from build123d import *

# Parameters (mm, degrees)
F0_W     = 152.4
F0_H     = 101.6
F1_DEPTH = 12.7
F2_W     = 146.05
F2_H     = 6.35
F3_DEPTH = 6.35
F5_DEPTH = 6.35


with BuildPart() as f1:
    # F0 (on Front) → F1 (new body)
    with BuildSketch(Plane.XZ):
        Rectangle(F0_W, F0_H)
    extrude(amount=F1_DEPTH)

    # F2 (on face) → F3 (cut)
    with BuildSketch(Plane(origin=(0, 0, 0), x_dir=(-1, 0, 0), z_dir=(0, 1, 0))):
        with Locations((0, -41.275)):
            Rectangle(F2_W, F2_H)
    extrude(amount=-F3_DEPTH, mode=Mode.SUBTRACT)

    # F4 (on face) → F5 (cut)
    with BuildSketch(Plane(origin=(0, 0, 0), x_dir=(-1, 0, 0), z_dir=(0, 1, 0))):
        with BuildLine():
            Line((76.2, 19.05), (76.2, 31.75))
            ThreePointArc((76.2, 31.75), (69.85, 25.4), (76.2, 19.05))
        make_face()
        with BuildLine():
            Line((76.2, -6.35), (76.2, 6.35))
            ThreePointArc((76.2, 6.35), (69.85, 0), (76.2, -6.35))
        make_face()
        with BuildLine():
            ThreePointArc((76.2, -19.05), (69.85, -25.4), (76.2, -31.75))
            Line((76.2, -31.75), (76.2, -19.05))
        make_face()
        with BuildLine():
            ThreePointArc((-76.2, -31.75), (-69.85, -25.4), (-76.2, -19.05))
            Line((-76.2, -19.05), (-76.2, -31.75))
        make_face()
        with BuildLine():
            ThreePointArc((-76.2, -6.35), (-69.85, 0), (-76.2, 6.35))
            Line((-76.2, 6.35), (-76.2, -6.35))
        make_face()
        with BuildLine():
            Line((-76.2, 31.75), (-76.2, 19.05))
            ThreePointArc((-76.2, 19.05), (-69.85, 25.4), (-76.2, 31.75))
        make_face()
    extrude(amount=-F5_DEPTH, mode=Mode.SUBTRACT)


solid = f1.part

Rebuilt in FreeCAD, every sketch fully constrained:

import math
import FreeCAD as App
import Part
import Sketcher
from FreeCAD import Vector
Q = App.Units.Quantity

doc = App.newDocument("Part")
body = doc.addObject("PartDesign::Body", "Body")

# Sketch on XZ plane
sketch1 = body.newObject("Sketcher::SketchObject", "Sketch")
sketch1.AttachmentSupport = (doc.getObject("XZ_Plane"), [""])
sketch1.MapMode = "FlatFace"
sketch1.addGeometry(Part.LineSegment(Vector(-76, 51, 0), Vector(-76, -51, 0)), False)
sketch1.addGeometry(Part.LineSegment(Vector(-76, -51, 0), Vector(76, -51, 0)), False)
sketch1.addGeometry(Part.LineSegment(Vector(76, -51, 0), Vector(76, 51, 0)), False)
sketch1.addGeometry(Part.LineSegment(Vector(76, 51, 0), Vector(-76, 51, 0)), False)
sketch1.addConstraint(Sketcher.Constraint("Coincident", 0, 2, 1, 1))
sketch1.addConstraint(Sketcher.Constraint("Coincident", 1, 2, 2, 1))
sketch1.addConstraint(Sketcher.Constraint("Coincident", 2, 2, 3, 1))
sketch1.addConstraint(Sketcher.Constraint("Coincident", 3, 2, 0, 1))
sketch1.addConstraint(Sketcher.Constraint("Vertical", 0))
sketch1.addConstraint(Sketcher.Constraint("Horizontal", 1))
sketch1.addConstraint(Sketcher.Constraint("Vertical", 2))
sketch1.addConstraint(Sketcher.Constraint("Horizontal", 3))
sketch1.addConstraint(Sketcher.Constraint("Symmetric", 0, 2, 2, 2, -1, 1))
sketch1.addConstraint(Sketcher.Constraint("DistanceX", 1, 1, 1, 2, Q("6 in")))
sketch1.addConstraint(Sketcher.Constraint("DistanceY", 0, 2, 0, 1, Q("4 in")))
pad1 = body.newObject("PartDesign::Pad", "Pad")
pad1.Profile = sketch1
pad1.Length = Q("0.5 in")

# Sketch on XZ plane
sketch2 = body.newObject("Sketcher::SketchObject", "Sketch001")
sketch2.AttachmentSupport = (doc.getObject("XZ_Plane"), [""])
sketch2.MapMode = "FlatFace"
sketch2.addGeometry(Part.LineSegment(Vector(73, -38, 0), Vector(73, -44, 0)), False)
sketch2.addGeometry(Part.LineSegment(Vector(73, -44, 0), Vector(-73, -44, 0)), False)
sketch2.addGeometry(Part.LineSegment(Vector(-73, -44, 0), Vector(-73, -38, 0)), False)
sketch2.addGeometry(Part.LineSegment(Vector(-73, -38, 0), Vector(73, -38, 0)), False)
sketch2.addConstraint(Sketcher.Constraint("Coincident", 0, 2, 1, 1))
sketch2.addConstraint(Sketcher.Constraint("Coincident", 1, 2, 2, 1))
sketch2.addConstraint(Sketcher.Constraint("Coincident", 2, 2, 3, 1))
sketch2.addConstraint(Sketcher.Constraint("Coincident", 3, 2, 0, 1))
sketch2.addConstraint(Sketcher.Constraint("Vertical", 0))
sketch2.addConstraint(Sketcher.Constraint("Horizontal", 1))
sketch2.addConstraint(Sketcher.Constraint("Vertical", 2))
sketch2.addConstraint(Sketcher.Constraint("Horizontal", 3))
sketch2.addConstraint(Sketcher.Constraint("DistanceX", 1, 2, 1, 1, Q("5.75 in")))
sketch2.addConstraint(Sketcher.Constraint("DistanceY", 0, 2, 0, 1, Q("0.25 in")))
sketch2.addConstraint(Sketcher.Constraint("DistanceY", 2, 2, -1, 1, Q("1.5 in")))
sketch2.addConstraint(Sketcher.Constraint("DistanceX", -1, 1, 0, 2, Q("2.875 in")))
pocket1 = body.newObject("PartDesign::Pocket", "Pocket")
pocket1.Profile = sketch2
pocket1.Length = Q("0.25 in")
pocket1.Reversed = True

# Sketch on XZ plane
sketch3 = body.newObject("Sketcher::SketchObject", "Sketch002")
sketch3.AttachmentSupport = (doc.getObject("XZ_Plane"), [""])
sketch3.MapMode = "FlatFace"
sketch3.addGeometry(Part.LineSegment(Vector(-76, 19, 0), Vector(-76, 32, 0)), False)
sketch3.addGeometry(Part.ArcOfCircle(Part.Circle(Vector(-76, 25, 0), Vector(0, 0, 1), 6), math.radians(-90), math.radians(90)), False)
sketch3.addGeometry(Part.LineSegment(Vector(-76, -6, 0), Vector(-76, 6, 0)), False)
sketch3.addGeometry(Part.ArcOfCircle(Part.Circle(Vector(-76, 0, 0), Vector(0, 0, 1), 6), math.radians(-90), math.radians(90)), False)
sketch3.addGeometry(Part.ArcOfCircle(Part.Circle(Vector(-76, -25, 0), Vector(0, 0, 1), 6), math.radians(-90), math.radians(90)), False)
sketch3.addGeometry(Part.LineSegment(Vector(-76, -32, 0), Vector(-76, -19, 0)), False)
sketch3.addGeometry(Part.ArcOfCircle(Part.Circle(Vector(76, -25, 0), Vector(0, 0, 1), 6), math.radians(90), math.radians(270)), False)
sketch3.addGeometry(Part.LineSegment(Vector(76, -19, 0), Vector(76, -32, 0)), False)
sketch3.addGeometry(Part.ArcOfCircle(Part.Circle(Vector(76, 0, 0), Vector(0, 0, 1), 6), math.radians(90), math.radians(270)), False)
sketch3.addGeometry(Part.LineSegment(Vector(76, 6, 0), Vector(76, -6, 0)), False)
sketch3.addGeometry(Part.LineSegment(Vector(76, 32, 0), Vector(76, 19, 0)), False)
sketch3.addGeometry(Part.ArcOfCircle(Part.Circle(Vector(76, 25, 0), Vector(0, 0, 1), 6), math.radians(90), math.radians(270)), False)
sketch3.addConstraint(Sketcher.Constraint("Coincident", 0, 1, 1, 1))
sketch3.addConstraint(Sketcher.Constraint("Coincident", 1, 2, 0, 2))
sketch3.addConstraint(Sketcher.Constraint("Coincident", 2, 1, 3, 1))
sketch3.addConstraint(Sketcher.Constraint("Coincident", 3, 2, 2, 2))
sketch3.addConstraint(Sketcher.Constraint("Coincident", 4, 1, 5, 1))
sketch3.addConstraint(Sketcher.Constraint("Coincident", 5, 2, 4, 2))
sketch3.addConstraint(Sketcher.Constraint("Coincident", 6, 1, 7, 1))
sketch3.addConstraint(Sketcher.Constraint("Coincident", 7, 2, 6, 2))
sketch3.addConstraint(Sketcher.Constraint("Coincident", 8, 1, 9, 1))
sketch3.addConstraint(Sketcher.Constraint("Coincident", 9, 2, 8, 2))
sketch3.addConstraint(Sketcher.Constraint("Coincident", 10, 1, 11, 1))
sketch3.addConstraint(Sketcher.Constraint("Coincident", 11, 2, 10, 2))
sketch3.addConstraint(Sketcher.Constraint("Vertical", 0))
sketch3.addConstraint(Sketcher.Constraint("Vertical", 2))
sketch3.addConstraint(Sketcher.Constraint("Vertical", 5))
sketch3.addConstraint(Sketcher.Constraint("Vertical", 7))
sketch3.addConstraint(Sketcher.Constraint("Vertical", 9))
sketch3.addConstraint(Sketcher.Constraint("Vertical", 10))
sketch3.addConstraint(Sketcher.Constraint("Equal", 1, 3))
sketch3.addConstraint(Sketcher.Constraint("Equal", 3, 4))
sketch3.addConstraint(Sketcher.Constraint("Equal", 4, 6))
sketch3.addConstraint(Sketcher.Constraint("Equal", 6, 8))
sketch3.addConstraint(Sketcher.Constraint("Equal", 8, 11))
sketch3.addConstraint(Sketcher.Constraint("Symmetric", 1, 3, 6, 3, -1, 1))
sketch3.addConstraint(Sketcher.Constraint("Symmetric", 3, 3, 8, 3, -1, 1))
sketch3.addConstraint(Sketcher.Constraint("Symmetric", 4, 3, 11, 3, -1, 1))
sketch3.addConstraint(Sketcher.Constraint("Symmetric", 4, 3, 6, 3, -2))
sketch3.addConstraint(Sketcher.Constraint("Symmetric", 3, 2, 8, 1, -2))
sketch3.addConstraint(Sketcher.Constraint("Vertical", 1, 3, 3, 3))
sketch3.addConstraint(Sketcher.Constraint("Vertical", 4, 3, 0, 1))
sketch3.addConstraint(Sketcher.Constraint("Vertical", 1, 2, 2, 1))
sketch3.addConstraint(Sketcher.Constraint("Vertical", 3, 2, 4, 1))
sketch3.addConstraint(Sketcher.Constraint("Vertical", 11, 3, 6, 1))
sketch3.addConstraint(Sketcher.Constraint("Vertical", 9, 2, 10, 1))
sketch3.addConstraint(Sketcher.Constraint("Radius", 1, Q("0.25 in")))
sketch3.addConstraint(Sketcher.Constraint("DistanceX", 1, 3, -1, 1, Q("3 in")))
sketch3.addConstraint(Sketcher.Constraint("DistanceY", -1, 1, 1, 3, Q("1 in")))
pocket2 = body.newObject("PartDesign::Pocket", "Pocket001")
pocket2.Profile = sketch3
pocket2.Length = Q("0.25 in")
pocket2.Reversed = True

doc.recompute()
